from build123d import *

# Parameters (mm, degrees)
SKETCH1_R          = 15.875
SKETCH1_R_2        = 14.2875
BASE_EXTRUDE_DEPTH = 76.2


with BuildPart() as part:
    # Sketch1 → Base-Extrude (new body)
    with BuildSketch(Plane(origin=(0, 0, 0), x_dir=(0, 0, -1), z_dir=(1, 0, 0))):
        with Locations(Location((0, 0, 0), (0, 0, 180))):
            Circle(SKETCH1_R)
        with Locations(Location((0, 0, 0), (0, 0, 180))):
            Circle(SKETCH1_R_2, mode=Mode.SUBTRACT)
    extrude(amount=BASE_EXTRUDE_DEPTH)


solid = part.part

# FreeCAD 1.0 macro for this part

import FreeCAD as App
import Part
import Sketcher
from FreeCAD import Vector
Q = App.Units.Quantity

doc = App.newDocument("Part")
body = doc.addObject("PartDesign::Body", "Body")

# Sketch on YZ plane
sketch1 = doc.addObject("Sketcher::SketchObject", "Sketch")
body.addObject(sketch1)
sketch1.AttachmentSupport = (doc.YZ_Plane, [""])
sketch1.MapMode = "FlatFace"
sketch1.addGeometry([
    Part.Circle(Vector(0, 0, 0), Vector(0, 0, 1), 16),
    Part.Circle(Vector(0, 0, 0), Vector(0, 0, 1), 14),
], False)
sketch1.addConstraint([
    Sketcher.Constraint("Coincident", 0, 3, -1, 1),
    Sketcher.Constraint("Coincident", 1, 3, -1, 1),
    Sketcher.Constraint("Diameter", 0, Q("1.25 in")),
    Sketcher.Constraint("Diameter", 1, Q("1.125 in")),
])
pad1 = doc.addObject("PartDesign::Pad", "Pad")
body.addObject(pad1)
pad1.Profile = sketch1
pad1.Length = Q("3 in")

doc.recompute()
